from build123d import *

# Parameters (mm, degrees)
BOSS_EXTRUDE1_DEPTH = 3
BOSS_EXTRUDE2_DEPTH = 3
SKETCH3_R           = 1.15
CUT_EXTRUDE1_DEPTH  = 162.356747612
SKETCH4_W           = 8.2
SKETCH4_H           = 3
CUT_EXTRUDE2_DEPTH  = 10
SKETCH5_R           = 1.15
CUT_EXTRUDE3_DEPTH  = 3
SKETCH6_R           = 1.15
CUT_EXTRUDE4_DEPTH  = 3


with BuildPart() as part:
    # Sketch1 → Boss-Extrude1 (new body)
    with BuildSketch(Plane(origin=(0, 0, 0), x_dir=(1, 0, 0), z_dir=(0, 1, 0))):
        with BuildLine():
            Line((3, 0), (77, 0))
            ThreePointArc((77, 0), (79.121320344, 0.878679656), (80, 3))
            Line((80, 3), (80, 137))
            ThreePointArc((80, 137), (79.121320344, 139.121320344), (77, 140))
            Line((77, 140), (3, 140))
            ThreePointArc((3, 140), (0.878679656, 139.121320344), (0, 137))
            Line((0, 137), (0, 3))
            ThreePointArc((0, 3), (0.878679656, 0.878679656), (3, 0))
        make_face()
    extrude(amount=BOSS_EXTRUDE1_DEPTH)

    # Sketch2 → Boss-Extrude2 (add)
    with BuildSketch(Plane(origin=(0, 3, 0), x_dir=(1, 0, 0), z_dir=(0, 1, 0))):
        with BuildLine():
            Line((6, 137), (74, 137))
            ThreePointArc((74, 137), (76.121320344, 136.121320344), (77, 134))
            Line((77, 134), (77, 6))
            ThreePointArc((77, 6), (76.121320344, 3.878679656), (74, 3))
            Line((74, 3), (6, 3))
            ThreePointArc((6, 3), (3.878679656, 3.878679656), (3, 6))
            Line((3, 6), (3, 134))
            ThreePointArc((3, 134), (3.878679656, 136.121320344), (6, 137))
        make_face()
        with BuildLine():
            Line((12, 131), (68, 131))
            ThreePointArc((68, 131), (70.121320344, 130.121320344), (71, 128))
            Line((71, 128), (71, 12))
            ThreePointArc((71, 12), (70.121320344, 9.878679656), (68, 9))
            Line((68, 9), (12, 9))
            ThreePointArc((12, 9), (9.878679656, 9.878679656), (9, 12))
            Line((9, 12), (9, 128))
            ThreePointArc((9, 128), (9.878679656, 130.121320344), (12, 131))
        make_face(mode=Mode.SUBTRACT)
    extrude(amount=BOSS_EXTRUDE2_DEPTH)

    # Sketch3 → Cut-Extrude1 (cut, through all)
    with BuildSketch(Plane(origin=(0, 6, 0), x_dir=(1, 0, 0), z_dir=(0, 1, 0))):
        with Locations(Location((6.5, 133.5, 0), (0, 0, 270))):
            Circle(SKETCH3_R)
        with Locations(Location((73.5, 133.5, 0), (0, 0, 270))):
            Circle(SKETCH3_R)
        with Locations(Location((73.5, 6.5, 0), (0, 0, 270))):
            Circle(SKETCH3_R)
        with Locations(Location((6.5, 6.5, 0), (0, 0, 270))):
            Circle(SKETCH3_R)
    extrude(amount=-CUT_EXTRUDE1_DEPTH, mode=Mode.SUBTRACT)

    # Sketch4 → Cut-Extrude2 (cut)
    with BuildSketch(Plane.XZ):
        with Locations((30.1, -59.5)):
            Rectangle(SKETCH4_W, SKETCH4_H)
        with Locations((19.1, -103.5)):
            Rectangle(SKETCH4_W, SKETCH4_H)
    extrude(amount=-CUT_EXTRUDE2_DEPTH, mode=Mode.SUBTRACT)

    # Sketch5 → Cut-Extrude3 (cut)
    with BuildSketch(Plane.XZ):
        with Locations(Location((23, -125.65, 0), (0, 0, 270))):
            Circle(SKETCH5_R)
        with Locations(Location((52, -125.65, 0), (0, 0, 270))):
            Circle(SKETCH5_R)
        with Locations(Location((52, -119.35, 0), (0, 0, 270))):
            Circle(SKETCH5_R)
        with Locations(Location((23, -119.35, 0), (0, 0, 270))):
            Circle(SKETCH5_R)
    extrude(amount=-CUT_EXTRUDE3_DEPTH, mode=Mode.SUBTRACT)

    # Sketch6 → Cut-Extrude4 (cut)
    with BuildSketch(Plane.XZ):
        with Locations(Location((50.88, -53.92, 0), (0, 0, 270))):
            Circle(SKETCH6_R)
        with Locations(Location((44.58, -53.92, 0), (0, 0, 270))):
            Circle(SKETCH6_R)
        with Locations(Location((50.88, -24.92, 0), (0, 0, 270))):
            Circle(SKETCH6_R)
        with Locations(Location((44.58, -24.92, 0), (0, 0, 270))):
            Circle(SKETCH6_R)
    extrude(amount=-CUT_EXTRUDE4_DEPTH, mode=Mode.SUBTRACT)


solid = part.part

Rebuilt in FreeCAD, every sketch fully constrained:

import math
import FreeCAD as App
import Part
import Sketcher
from FreeCAD import Vector


def add_polygon(sketch, points):
    """Adds a closed chain of lines whose ends are joined by coincident constraints."""
    first, n = sketch.GeometryCount, len(points)
    for a, b in zip(points, points[1:] + points[:1]):
        sketch.addGeometry(Part.LineSegment(App.Vector(*a, 0), App.Vector(*b, 0)), False)
    for i in range(n):
        sketch.addConstraint(Sketcher.Constraint("Coincident", first + i, 2, first + (i + 1) % n, 1))

doc = App.newDocument("Part")
params = doc.addObject("Spreadsheet::Sheet", "Params")
for row, (alias, value) in enumerate([
    ("sketch1_radius", "3 mm"),
    ("sketch1_width", "74 mm"),
    ("sketch1_height", "134 mm"),
    ("pad1_length", "3 mm"),
    ("sketch2_radius", "3 mm"),
    ("sketch2_width", "68 mm"),
    ("sketch2_width2", "56 mm"),
    ("sketch2_height", "128 mm"),
    ("sketch2_height2", "116 mm"),
    ("pad2_length", "3 mm"),
    ("sketch3_diameter", "2.3 mm"),
    ("sketch4_height", "3 mm"),
    ("sketch4_width", "8.2 mm"),
    ("pocket2_length", "10 mm"),
    ("sketch5_diameter", "2.3 mm"),
    ("pocket3_length", "3 mm"),
    ("sketch6_diameter", "2.3 mm"),
    ("pocket4_length", "3 mm"),
], start=1):
    params.set(f"A{row}", alias)
    params.set(f"B{row}", "=" + value)
    params.setAlias(f"B{row}", alias)

body = doc.addObject("PartDesign::Body", "Body")

# Sketch on XZ plane
sketch1 = doc.addObject("Sketcher::SketchObject", "Sketch")
body.addObject(sketch1)
sketch1.AttachmentSupport = (doc.XZ_Plane, [""])
sketch1.MapMode = "FlatFace"
sketch1.addGeometry(Part.LineSegment(Vector(3, 0, 0), Vector(77, 0, 0)), False)
sketch1.addGeometry(Part.ArcOfCircle(Part.Circle(Vector(77, -3, 0), Vector(0, 0, 1), 3), math.radians(0), math.radians(90)), False)
sketch1.addGeometry(Part.LineSegment(Vector(80, -3, 0), Vector(80, -137, 0)), False)
sketch1.addGeometry(Part.ArcOfCircle(Part.Circle(Vector(77, -137, 0), Vector(0, 0, 1), 3), math.radians(-90), math.radians(0)), False)
sketch1.addGeometry(Part.LineSegment(Vector(77, -140, 0), Vector(3, -140, 0)), False)
sketch1.addGeometry(Part.ArcOfCircle(Part.Circle(Vector(3, -137, 0), Vector(0, 0, 1), 3), math.radians(180), math.radians(270)), False)
sketch1.addGeometry(Part.LineSegment(Vector(0, -137, 0), Vector(0, -3, 0)), False)
sketch1.addGeometry(Part.ArcOfCircle(Part.Circle(Vector(3, -3, 0), Vector(0, 0, 1), 3), math.radians(90), math.radians(180)), False)
sketch1.addConstraint(Sketcher.Constraint("Tangent", 0, 2, 1, 2))
sketch1.addConstraint(Sketcher.Constraint("Tangent", 1, 1, 2, 1))
sketch1.addConstraint(Sketcher.Constraint("Tangent", 2, 2, 3, 2))
sketch1.addConstraint(Sketcher.Constraint("Tangent", 3, 1, 4, 1))
sketch1.addConstraint(Sketcher.Constraint("Tangent", 4, 2, 5, 2))
sketch1.addConstraint(Sketcher.Constraint("Tangent", 5, 1, 6, 1))
sketch1.addConstraint(Sketcher.Constraint("Tangent", 6, 2, 7, 2))
sketch1.addConstraint(Sketcher.Constraint("Tangent", 7, 1, 0, 1))
sketch1.addConstraint(Sketcher.Constraint("Horizontal", 0))
sketch1.addConstraint(Sketcher.Constraint("Vertical", 2))
sketch1.addConstraint(Sketcher.Constraint("Horizontal", 4))
sketch1.addConstraint(Sketcher.Constraint("Vertical", 6))
sketch1.addConstraint(Sketcher.Constraint("Equal", 1, 3))
sketch1.addConstraint(Sketcher.Constraint("Equal", 3, 5))
sketch1.addConstraint(Sketcher.Constraint("Equal", 5, 7))
sketch1.addConstraint(Sketcher.Constraint("PointOnObject", 0, 2, -1))
sketch1.addConstraint(Sketcher.Constraint("PointOnObject", 5, 1, -2))
sketch1.addConstraint(Sketcher.Constraint("Radius", 1, 3.0))
sketch1.addConstraint(Sketcher.Constraint("DistanceX", 0, 1, 0, 2, 74.0))
sketch1.addConstraint(Sketcher.Constraint("DistanceY", 2, 2, 2, 1, 134.0))
sketch1.setExpression("Constraints[17]", "Params.sketch1_radius")
sketch1.setExpression("Constraints[18]", "Params.sketch1_width")
sketch1.setExpression("Constraints[19]", "Params.sketch1_height")
pad1 = doc.addObject("PartDesign::Pad", "Pad")
body.addObject(pad1)
pad1.Profile = sketch1
pad1.setExpression("Length", "Params.pad1_length")
pad1.Reversed = True

# Sketch on XZ plane
sketch2 = doc.addObject("Sketcher::SketchObject", "Sketch001")
body.addObject(sketch2)
sketch2.AttachmentSupport = (doc.XZ_Plane, [""])
sketch2.MapMode = "FlatFace"
sketch2.AttachmentOffset = App.Placement(Vector(0, 0, -3), App.Rotation())
sketch2.addGeometry(Part.LineSegment(Vector(74, -137, 0), Vector(6, -137, 0)), False)
sketch2.addGeometry(Part.ArcOfCircle(Part.Circle(Vector(6, -134, 0), Vector(0, 0, 1), 3), math.radians(180), math.radians(270)), False)
sketch2.addGeometry(Part.LineSegment(Vector(3, -134, 0), Vector(3, -6, 0)), False)
sketch2.addGeometry(Part.ArcOfCircle(Part.Circle(Vector(6, -6, 0), Vector(0, 0, 1), 3), math.radians(90), math.radians(180)), False)
sketch2.addGeometry(Part.LineSegment(Vector(6, -3, 0), Vector(74, -3, 0)), False)
sketch2.addGeometry(Part.ArcOfCircle(Part.Circle(Vector(74, -6, 0), Vector(0, 0, 1), 3), math.radians(0), math.radians(90)), False)
sketch2.addGeometry(Part.LineSegment(Vector(77, -6, 0), Vector(77, -134, 0)), False)
sketch2.addGeometry(Part.ArcOfCircle(Part.Circle(Vector(74, -134, 0), Vector(0, 0, 1), 3), math.radians(-90), math.radians(0)), False)
sketch2.addGeometry(Part.LineSegment(Vector(12, -131, 0), Vector(68, -131, 0)), False)
sketch2.addGeometry(Part.ArcOfCircle(Part.Circle(Vector(68, -128, 0), Vector(0, 0, 1), 3), math.radians(-90), math.radians(0)), False)
sketch2.addGeometry(Part.LineSegment(Vector(71, -128, 0), Vector(71, -12, 0)), False)
sketch2.addGeometry(Part.ArcOfCircle(Part.Circle(Vector(68, -12, 0), Vector(0, 0, 1), 3), math.radians(0), math.radians(90)), False)
sketch2.addGeometry(Part.LineSegment(Vector(68, -9, 0), Vector(12, -9, 0)), False)
sketch2.addGeometry(Part.ArcOfCircle(Part.Circle(Vector(12, -12, 0), Vector(0, 0, 1), 3), math.radians(90), math.radians(180)), False)
sketch2.addGeometry(Part.LineSegment(Vector(9, -12, 0), Vector(9, -128, 0)), False)
sketch2.addGeometry(Part.ArcOfCircle(Part.Circle(Vector(12, -128, 0), Vector(0, 0, 1), 3), math.radians(180), math.radians(270)), False)
sketch2.addConstraint(Sketcher.Constraint("Tangent", 0, 2, 1, 2))
sketch2.addConstraint(Sketcher.Constraint("Tangent", 1, 1, 2, 1))
sketch2.addConstraint(Sketcher.Constraint("Tangent", 2, 2, 3, 2))
sketch2.addConstraint(Sketcher.Constraint("Tangent", 3, 1, 4, 1))
sketch2.addConstraint(Sketcher.Constraint("Tangent", 4, 2, 5, 2))
sketch2.addConstraint(Sketcher.Constraint("Tangent", 5, 1, 6, 1))
sketch2.addConstraint(Sketcher.Constraint("Tangent", 6, 2, 7, 2))
sketch2.addConstraint(Sketcher.Constraint("Tangent", 7, 1, 0, 1))
sketch2.addConstraint(Sketcher.Constraint("Tangent", 8, 2, 9, 1))
sketch2.addConstraint(Sketcher.Constraint("Tangent", 9, 2, 10, 1))
sketch2.addConstraint(Sketcher.Constraint("Tangent", 10, 2, 11, 1))
sketch2.addConstraint(Sketcher.Constraint("Tangent", 11, 2, 12, 1))
sketch2.addConstraint(Sketcher.Constraint("Tangent", 12, 2, 13, 1))
sketch2.addConstraint(Sketcher.Constraint("Tangent", 13, 2, 14, 1))
sketch2.addConstraint(Sketcher.Constraint("Tangent", 14, 2, 15, 1))
sketch2.addConstraint(Sketcher.Constraint("Tangent", 15, 2, 8, 1))
sketch2.addConstraint(Sketcher.Constraint("Horizontal", 0))
sketch2.addConstraint(Sketcher.Constraint("Vertical", 2))
sketch2.addConstraint(Sketcher.Constraint("Horizontal", 4))
sketch2.addConstraint(Sketcher.Constraint("Vertical", 6))
sketch2.addConstraint(Sketcher.Constraint("Horizontal", 8))
sketch2.addConstraint(Sketcher.Constraint("Vertical", 10))
sketch2.addConstraint(Sketcher.Constraint("Horizontal", 12))
sketch2.addConstraint(Sketcher.Constraint("Vertical", 14))
sketch2.addConstraint(Sketcher.Constraint("Equal", 1, 3))
sketch2.addConstraint(Sketcher.Constraint("Equal", 3, 5))
sketch2.addConstraint(Sketcher.Constraint("Equal", 5, 7))
sketch2.addConstraint(Sketcher.Constraint("Equal", 7, 9))
sketch2.addConstraint(Sketcher.Constraint("Equal", 9, 11))
sketch2.addConstraint(Sketcher.Constraint("Equal", 11, 13))
sketch2.addConstraint(Sketcher.Constraint("Equal", 13, 15))
sketch2.addConstraint(Sketcher.Constraint("Radius", 1, 3.0))
sketch2.addConstraint(Sketcher.Constraint("DistanceX", 0, 2, 0, 1, 68.0))
sketch2.addConstraint(Sketcher.Constraint("DistanceX", 8, 1, 8, 2, 56.0))
sketch2.addConstraint(Sketcher.Constraint("DistanceY", 2, 1, 2, 2, 128.0))
sketch2.addConstraint(Sketcher.Constraint("DistanceY", 10, 1, 10, 2, 116.0))
sketch2.addConstraint(Sketcher.Constraint("DistanceX", -1, 1, 1, 3, 6.0))
sketch2.addConstraint(Sketcher.Constraint("DistanceY", 1, 3, -1, 1, 134.0))
sketch2.addConstraint(Sketcher.Constraint("DistanceX", -1, 1, 9, 3, 68.0))
sketch2.addConstraint(Sketcher.Constraint("DistanceY", 9, 3, -1, 1, 128.0))
sketch2.setExpression("Constraints[31]", "Params.sketch2_radius")
sketch2.setExpression("Constraints[32]", "Params.sketch2_width")
sketch2.setExpression("Constraints[33]", "Params.sketch2_width2")
sketch2.setExpression("Constraints[34]", "Params.sketch2_height")
sketch2.setExpression("Constraints[35]", "Params.sketch2_height2")
pad2 = doc.addObject("PartDesign::Pad", "Pad001")
body.addObject(pad2)
pad2.Profile = sketch2
pad2.setExpression("Length", "Params.pad2_length")
pad2.Reversed = True

# Sketch on XZ plane
sketch3 = doc.addObject("Sketcher::SketchObject", "Sketch002")
body.addObject(sketch3)
sketch3.AttachmentSupport = (doc.XZ_Plane, [""])
sketch3.MapMode = "FlatFace"
sketch3.AttachmentOffset = App.Placement(Vector(0, 0, -6), App.Rotation())
sketch3.addGeometry(Part.Circle(Vector(6.5, -133.5, 0), Vector(0, 0, 1), 1.1), False)
sketch3.addGeometry(Part.Circle(Vector(73.5, -133.5, 0), Vector(0, 0, 1), 1.1), False)
sketch3.addGeometry(Part.Circle(Vector(73.5, -6.5, 0), Vector(0, 0, 1), 1.1), False)
sketch3.addGeometry(Part.Circle(Vector(6.5, -6.5, 0), Vector(0, 0, 1), 1.1), False)
sketch3.addConstraint(Sketcher.Constraint("Equal", 0, 1))
sketch3.addConstraint(Sketcher.Constraint("Equal", 1, 2))
sketch3.addConstraint(Sketcher.Constraint("Equal", 2, 3))
sketch3.addConstraint(Sketcher.Constraint("Horizontal", 0, 3, 1, 3))
sketch3.addConstraint(Sketcher.Constraint("Horizontal", 2, 3, 3, 3))
sketch3.addConstraint(Sketcher.Constraint("Vertical", 1, 3, 2, 3))
sketch3.addConstraint(Sketcher.Constraint("Vertical", 0, 3, 3, 3))
sketch3.addConstraint(Sketcher.Constraint("Diameter", 0, 2.3))
sketch3.addConstraint(Sketcher.Constraint("DistanceX", 0, 3, 1, 3, 67.0))
sketch3.addConstraint(Sketcher.Constraint("DistanceY", 1, 3, 2, 3, 127.0))
sketch3.addConstraint(Sketcher.Constraint("DistanceX", -1, 1, 0, 3, 6.5))
sketch3.addConstraint(Sketcher.Constraint("DistanceY", 0, 3, -1, 1, 133.5))
sketch3.setExpression("Constraints[7]", "Params.sketch3_diameter")
pocket1 = doc.addObject("PartDesign::Pocket", "Pocket")
body.addObject(pocket1)
pocket1.Profile = sketch3
pocket1.Type = "ThroughAll"
pocket1.Reversed = True

# Sketch on XZ plane
sketch4 = doc.addObject("Sketcher::SketchObject", "Sketch003")
body.addObject(sketch4)
sketch4.AttachmentSupport = (doc.XZ_Plane, [""])
sketch4.MapMode = "FlatFace"
add_polygon(sketch4, [(26, -58), (26, -61), (34.2, -61), (34.2, -58)])  # lines 0-3
add_polygon(sketch4, [(15, -102), (15, -105), (23.2, -105), (23.2, -102)])  # lines 4-7
sketch4.addConstraint(Sketcher.Constraint("Vertical", 0))
sketch4.addConstraint(Sketcher.Constraint("Horizontal", 1))
sketch4.addConstraint(Sketcher.Constraint("Vertical", 2))
sketch4.addConstraint(Sketcher.Constraint("Horizontal", 3))
sketch4.addConstraint(Sketcher.Constraint("Vertical", 4))
sketch4.addConstraint(Sketcher.Constraint("Horizontal", 5))
sketch4.addConstraint(Sketcher.Constraint("Vertical", 6))
sketch4.addConstraint(Sketcher.Constraint("Horizontal", 7))
sketch4.addConstraint(Sketcher.Constraint("Equal", 3, 5))
sketch4.addConstraint(Sketcher.Constraint("Equal", 2, 4))
sketch4.addConstraint(Sketcher.Constraint("DistanceY", 0, 2, 0, 1, 3.0))
sketch4.addConstraint(Sketcher.Constraint("DistanceX", 1, 1, 1, 2, 8.2))
sketch4.addConstraint(Sketcher.Constraint("DistanceX", -1, 1, 0, 2, 26.0))
sketch4.addConstraint(Sketcher.Constraint("DistanceY", 0, 2, -1, 1, 61.0))
sketch4.addConstraint(Sketcher.Constraint("DistanceX", -1, 1, 4, 2, 15.0))
sketch4.addConstraint(Sketcher.Constraint("DistanceY", 4, 2, -1, 1, 105.0))
sketch4.setExpression("Constraints[18]", "Params.sketch4_height")
sketch4.setExpression("Constraints[19]", "Params.sketch4_width")
pocket2 = doc.addObject("PartDesign::Pocket", "Pocket001")
body.addObject(pocket2)
pocket2.Profile = sketch4
pocket2.setExpression("Length", "Params.pocket2_length")

# Sketch on XZ plane
sketch5 = doc.addObject("Sketcher::SketchObject", "Sketch004")
body.addObject(sketch5)
sketch5.AttachmentSupport = (doc.XZ_Plane, [""])
sketch5.MapMode = "FlatFace"
sketch5.addGeometry(Part.Circle(Vector(23, -125.7, 0), Vector(0, 0, 1), 1.1), False)
sketch5.addGeometry(Part.Circle(Vector(52, -125.7, 0), Vector(0, 0, 1), 1.1), False)
sketch5.addGeometry(Part.Circle(Vector(52, -119.3, 0), Vector(0, 0, 1), 1.1), False)
sketch5.addGeometry(Part.Circle(Vector(23, -119.3, 0), Vector(0, 0, 1), 1.1), False)
sketch5.addConstraint(Sketcher.Constraint("Equal", 0, 1))
sketch5.addConstraint(Sketcher.Constraint("Equal", 1, 2))
sketch5.addConstraint(Sketcher.Constraint("Equal", 2, 3))
sketch5.addConstraint(Sketcher.Constraint("Horizontal", 0, 3, 1, 3))
sketch5.addConstraint(Sketcher.Constraint("Horizontal", 2, 3, 3, 3))
sketch5.addConstraint(Sketcher.Constraint("Vertical", 1, 3, 2, 3))
sketch5.addConstraint(Sketcher.Constraint("Vertical", 0, 3, 3, 3))
sketch5.addConstraint(Sketcher.Constraint("Diameter", 0, 2.3))
sketch5.addConstraint(Sketcher.Constraint("DistanceX", -1, 1, 0, 3, 23.0))
sketch5.addConstraint(Sketcher.Constraint("DistanceX", -1, 1, 1, 3, 52.0))
sketch5.addConstraint(Sketcher.Constraint("DistanceY", 1, 3, 2, 3, 6.3))
sketch5.addConstraint(Sketcher.Constraint("DistanceY", 0, 3, -1, 1, 125.65))
sketch5.setExpression("Constraints[7]", "Params.sketch5_diameter")
pocket3 = doc.addObject("PartDesign::Pocket", "Pocket002")
body.addObject(pocket3)
pocket3.Profile = sketch5
pocket3.setExpression("Length", "Params.pocket3_length")

# Sketch on XZ plane
sketch6 = doc.addObject("Sketcher::SketchObject", "Sketch005")
body.addObject(sketch6)
sketch6.AttachmentSupport = (doc.XZ_Plane, [""])
sketch6.MapMode = "FlatFace"
sketch6.addGeometry(Part.Circle(Vector(50.9, -53.9, 0), Vector(0, 0, 1), 1.1), False)
sketch6.addGeometry(Part.Circle(Vector(44.6, -53.9, 0), Vector(0, 0, 1), 1.1), False)
sketch6.addGeometry(Part.Circle(Vector(50.9, -24.9, 0), Vector(0, 0, 1), 1.1), False)
sketch6.addGeometry(Part.Circle(Vector(44.6, -24.9, 0), Vector(0, 0, 1), 1.1), False)
sketch6.addConstraint(Sketcher.Constraint("Equal", 0, 1))
sketch6.addConstraint(Sketcher.Constraint("Equal", 1, 2))
sketch6.addConstraint(Sketcher.Constraint("Equal", 2, 3))
sketch6.addConstraint(Sketcher.Constraint("Horizontal", 0, 3, 1, 3))
sketch6.addConstraint(Sketcher.Constraint("Horizontal", 2, 3, 3, 3))
sketch6.addConstraint(Sketcher.Constraint("Vertical", 0, 3, 2, 3))
sketch6.addConstraint(Sketcher.Constraint("Vertical", 1, 3, 3, 3))
sketch6.addConstraint(Sketcher.Constraint("Diameter", 0, 2.3))
sketch6.addConstraint(Sketcher.Constraint("DistanceY", 0, 3, 2, 3, 29.0))
sketch6.addConstraint(Sketcher.Constraint("DistanceX", 1, 3, 0, 3, 6.3))
sketch6.addConstraint(Sketcher.Constraint("DistanceX", -1, 1, 0, 3, 50.88))
sketch6.addConstraint(Sketcher.Constraint("DistanceY", 0, 3, -1, 1, 53.92))
sketch6.setExpression("Constraints[7]", "Params.sketch6_diameter")
pocket4 = doc.addObject("PartDesign::Pocket", "Pocket003")
body.addObject(pocket4)
pocket4.Profile = sketch6
pocket4.setExpression("Length", "Params.pocket4_length")

doc.recompute()
